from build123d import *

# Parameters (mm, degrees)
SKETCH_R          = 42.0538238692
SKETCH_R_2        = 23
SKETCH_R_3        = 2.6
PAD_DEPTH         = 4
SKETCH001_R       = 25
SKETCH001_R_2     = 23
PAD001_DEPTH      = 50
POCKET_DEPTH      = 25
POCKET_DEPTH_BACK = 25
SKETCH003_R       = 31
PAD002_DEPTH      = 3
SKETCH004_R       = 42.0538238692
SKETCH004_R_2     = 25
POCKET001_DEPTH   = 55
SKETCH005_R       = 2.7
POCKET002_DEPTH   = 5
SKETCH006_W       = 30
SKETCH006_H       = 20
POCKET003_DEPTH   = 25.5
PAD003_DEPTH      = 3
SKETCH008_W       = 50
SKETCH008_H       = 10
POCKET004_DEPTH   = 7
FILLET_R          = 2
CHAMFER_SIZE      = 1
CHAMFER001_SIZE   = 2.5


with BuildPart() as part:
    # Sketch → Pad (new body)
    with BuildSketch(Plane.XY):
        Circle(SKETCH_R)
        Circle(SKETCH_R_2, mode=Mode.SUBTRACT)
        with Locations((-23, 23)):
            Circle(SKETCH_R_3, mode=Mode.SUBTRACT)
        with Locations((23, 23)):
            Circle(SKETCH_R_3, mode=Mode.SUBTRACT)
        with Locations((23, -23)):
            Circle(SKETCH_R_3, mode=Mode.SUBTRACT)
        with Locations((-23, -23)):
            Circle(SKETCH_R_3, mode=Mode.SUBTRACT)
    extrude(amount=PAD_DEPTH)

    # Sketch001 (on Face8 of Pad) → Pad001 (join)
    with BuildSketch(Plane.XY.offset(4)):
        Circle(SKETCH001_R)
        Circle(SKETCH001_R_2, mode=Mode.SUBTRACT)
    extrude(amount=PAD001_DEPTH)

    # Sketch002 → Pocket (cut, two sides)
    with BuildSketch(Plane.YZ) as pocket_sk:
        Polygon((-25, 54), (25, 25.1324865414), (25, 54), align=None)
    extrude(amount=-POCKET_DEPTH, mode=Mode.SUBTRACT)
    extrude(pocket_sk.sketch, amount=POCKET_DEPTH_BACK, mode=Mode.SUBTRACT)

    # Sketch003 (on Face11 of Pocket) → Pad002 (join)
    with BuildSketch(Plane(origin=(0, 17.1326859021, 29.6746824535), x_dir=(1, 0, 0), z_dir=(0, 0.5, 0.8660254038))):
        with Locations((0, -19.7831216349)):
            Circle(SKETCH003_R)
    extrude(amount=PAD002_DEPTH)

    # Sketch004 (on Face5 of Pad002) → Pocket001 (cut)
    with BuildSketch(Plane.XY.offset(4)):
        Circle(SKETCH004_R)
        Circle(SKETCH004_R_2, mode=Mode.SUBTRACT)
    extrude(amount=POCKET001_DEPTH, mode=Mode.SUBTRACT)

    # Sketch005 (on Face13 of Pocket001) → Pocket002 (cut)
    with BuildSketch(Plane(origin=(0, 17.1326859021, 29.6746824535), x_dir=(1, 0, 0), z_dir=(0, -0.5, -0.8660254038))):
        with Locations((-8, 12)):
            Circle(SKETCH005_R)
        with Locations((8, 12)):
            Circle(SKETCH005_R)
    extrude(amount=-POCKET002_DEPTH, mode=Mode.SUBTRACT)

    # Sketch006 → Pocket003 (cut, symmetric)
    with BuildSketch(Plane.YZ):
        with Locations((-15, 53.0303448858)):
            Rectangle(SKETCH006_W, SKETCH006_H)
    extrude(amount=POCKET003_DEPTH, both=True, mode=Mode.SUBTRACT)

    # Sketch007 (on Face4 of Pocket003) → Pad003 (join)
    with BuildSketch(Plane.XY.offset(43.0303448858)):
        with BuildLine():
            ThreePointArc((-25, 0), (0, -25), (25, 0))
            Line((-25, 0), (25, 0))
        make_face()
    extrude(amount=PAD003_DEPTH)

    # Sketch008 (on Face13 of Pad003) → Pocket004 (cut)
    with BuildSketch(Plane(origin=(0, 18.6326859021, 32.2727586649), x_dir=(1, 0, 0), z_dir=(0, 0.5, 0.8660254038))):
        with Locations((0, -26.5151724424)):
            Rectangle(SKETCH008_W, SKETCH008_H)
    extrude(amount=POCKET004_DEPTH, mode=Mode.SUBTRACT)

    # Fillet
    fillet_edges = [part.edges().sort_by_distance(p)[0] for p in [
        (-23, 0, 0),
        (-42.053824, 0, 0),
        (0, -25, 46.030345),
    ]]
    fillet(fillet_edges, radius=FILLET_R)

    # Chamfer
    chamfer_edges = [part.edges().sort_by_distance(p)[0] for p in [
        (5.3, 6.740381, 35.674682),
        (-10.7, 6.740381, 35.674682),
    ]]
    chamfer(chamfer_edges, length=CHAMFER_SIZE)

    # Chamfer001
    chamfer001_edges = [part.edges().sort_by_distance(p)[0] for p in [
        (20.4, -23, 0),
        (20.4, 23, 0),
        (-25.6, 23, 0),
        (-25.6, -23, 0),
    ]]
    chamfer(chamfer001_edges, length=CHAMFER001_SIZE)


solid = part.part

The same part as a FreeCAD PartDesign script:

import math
import FreeCAD as App
import Part
import Sketcher

V = App.Vector
Q = App.Units.Quantity


def edges_at(feature, points):
    """Names of the edges that pass closest to the given points."""
    edges = feature.Shape.Edges
    near = lambda p: min(range(len(edges)), key=lambda i: edges[i].distToShape(Part.Vertex(*p))[0])
    return sorted({f"Edge{near(p) + 1}" for p in points})


def add_polygon(sketch, points):
    """Adds a closed chain of lines whose ends are joined by coincident constraints."""
    first, n = sketch.GeometryCount, len(points)
    for a, b in zip(points, points[1:] + points[:1]):
        sketch.addGeometry(Part.LineSegment(App.Vector(*a, 0), App.Vector(*b, 0)), False)
    for i in range(n):
        sketch.addConstraint(Sketcher.Constraint("Coincident", first + i, 2, first + (i + 1) % n, 1))

doc = App.newDocument("Part")
body = doc.addObject("PartDesign::Body", "Body")

sketch1 = doc.addObject("Sketcher::SketchObject", "Sketch")
body.addObject(sketch1)
sketch1.AttachmentSupport = (doc.XY_Plane, [""])
sketch1.MapMode = "FlatFace"
sketch1.addGeometry([
    Part.Circle(V(0, 0, 0), V(0, 0, 1), 42.1),
    Part.Circle(V(-23, -23, 0), V(0, 0, 1), 2.6),
    Part.Circle(V(23, -23, 0), V(0, 0, 1), 2.6),
    Part.Circle(V(-23, 23, 0), V(0, 0, 1), 2.6),
    Part.Circle(V(0, 0, 0), V(0, 0, 1), 23),
    Part.Circle(V(23, 23, 0), V(0, 0, 1), 2.6),
], False)
sketch1.addConstraint([
    Sketcher.Constraint("Coincident", 0, 3, -1, 1),
    Sketcher.Constraint("Coincident", 4, 3, -1, 1),
    Sketcher.Constraint("Equal", 1, 2),
    Sketcher.Constraint("Equal", 2, 3),
    Sketcher.Constraint("Equal", 3, 5),
    Sketcher.Constraint("Symmetric", 2, 3, 3, 3, -1, 1),
    Sketcher.Constraint("Symmetric", 1, 3, 5, 3, -1, 1),
    Sketcher.Constraint("Symmetric", 1, 3, 2, 3, -2),
    Sketcher.Constraint("Diameter", 4, 46.0),
    Sketcher.Constraint("Diameter", 1, 5.2),
    Sketcher.Constraint("DistanceX", 1, 3, -1, 1, 23.0),
    Sketcher.Constraint("DistanceY", 1, 3, -1, 1, 23.0),
    Sketcher.Constraint("Diameter", 0, 84.107648),
])
pad1 = doc.addObject("PartDesign::Pad", "Pad")
body.addObject(pad1)
pad1.Profile = sketch1
pad1.Length = 4

sketch2 = doc.addObject("Sketcher::SketchObject", "Sketch001")
body.addObject(sketch2)
sketch2.AttachmentSupport = (doc.XY_Plane, [""])
sketch2.MapMode = "FlatFace"
sketch2.AttachmentOffset = App.Placement(V(0, 0, 4), App.Rotation())
sketch2.addGeometry([
    Part.Circle(V(0, 0, 0), V(0, 0, 1), 25),
    Part.Circle(V(0, 0, 0), V(0, 0, 1), 23),
], False)
sketch2.addConstraint([
    Sketcher.Constraint("Coincident", 0, 3, -1, 1),
    Sketcher.Constraint("Coincident", 1, 3, -1, 1),
    Sketcher.Constraint("Diameter", 0, 50.0),
    Sketcher.Constraint("Diameter", 1, 46.0),
])
pad2 = doc.addObject("PartDesign::Pad", "Pad001")
body.addObject(pad2)
pad2.Profile = sketch2
pad2.Length = 50

sketch3 = doc.addObject("Sketcher::SketchObject", "Sketch002")
body.addObject(sketch3)
sketch3.AttachmentSupport = (doc.YZ_Plane, [""])
sketch3.MapMode = "FlatFace"
add_polygon(sketch3, [(-25, 54), (25, 25), (25, 54)])
sketch3.addConstraint([
    Sketcher.Constraint("Vertical", 1),
    Sketcher.Constraint("Horizontal", 2),
    Sketcher.Constraint("DistanceX", 2, 2, 2, 1, 50.0),
    Sketcher.Constraint("Angle", 0, Q("-30 deg")),
    Sketcher.Constraint("DistanceX", -1, 1, 0, 2, 25.0),
    Sketcher.Constraint("DistanceY", -1, 1, 1, 2, 54.0),
])
pocket1 = doc.addObject("PartDesign::Pocket", "Pocket")
body.addObject(pocket1)
pocket1.Profile = sketch3
pocket1.Type = "ThroughAll"
pocket1.Midplane = True

sketch4 = doc.addObject("Sketcher::SketchObject", "Sketch003")
body.addObject(sketch4)
sketch4.Placement = App.Placement(V(0, 17.132686, 29.674682), App.Rotation(V(1, 0, 0), V(0, 0.866025404, -0.5), V(0, 0.5, 0.866025404), "ZXY"))
sketch4.addGeometry(Part.Circle(V(0, -20, 0), V(0, 0, 1), 31), False)
sketch4.addConstraint([
    Sketcher.Constraint("PointOnObject", 0, 3, -2),
    Sketcher.Constraint("Diameter", 0, 62.0),
    Sketcher.Constraint("DistanceY", 0, 3, -1, 1, 19.783122),
])
pad3 = doc.addObject("PartDesign::Pad", "Pad002")
body.addObject(pad3)
pad3.Profile = sketch4
pad3.Length = 3

sketch5 = doc.addObject("Sketcher::SketchObject", "Sketch004")
body.addObject(sketch5)
sketch5.AttachmentSupport = (doc.XY_Plane, [""])
sketch5.MapMode = "FlatFace"
sketch5.AttachmentOffset = App.Placement(V(0, 0, 4), App.Rotation())
sketch5.addGeometry([
    Part.Circle(V(0, 0, 0), V(0, 0, 1), 42),
    Part.Circle(V(0, 0, 0), V(0, 0, 1), 25),
], False)
sketch5.addConstraint([
    Sketcher.Constraint("Coincident", 0, 3, -1, 1),
    Sketcher.Constraint("Coincident", 1, 3, -1, 1),
    Sketcher.Constraint("Diameter", 1, 50.0),
    Sketcher.Constraint("Diameter", 0, 84.107648),
])
pocket2 = doc.addObject("PartDesign::Pocket", "Pocket001")
body.addObject(pocket2)
pocket2.Profile = sketch5
pocket2.Length = 55
pocket2.Reversed = True

sketch6 = doc.addObject("Sketcher::SketchObject", "Sketch005")
body.addObject(sketch6)
sketch6.Placement = App.Placement(V(0, 17.132686, 29.674682), App.Rotation(V(1, 0, 0), V(0, -0.866025404, 0.5), V(0, -0.5, -0.866025404), "ZXY"))
sketch6.addGeometry([
    Part.Circle(V(-8, 12, 0), V(0, 0, 1), 2.7),
    Part.Circle(V(8, 12, 0), V(0, 0, 1), 2.7),
], False)
sketch6.addConstraint([
    Sketcher.Constraint("Equal", 0, 1),
    Sketcher.Constraint("Symmetric", 0, 3, 1, 3, -2),
    Sketcher.Constraint("Diameter", 0, 5.4),
    Sketcher.Constraint("DistanceX", 0, 3, -1, 1, 8.0),
    Sketcher.Constraint("DistanceY", -1, 1, 0, 3, 12.0),
])
pocket3 = doc.addObject("PartDesign::Pocket", "Pocket002")
body.addObject(pocket3)
pocket3.Profile = sketch6
pocket3.Length = 5

sketch7 = doc.addObject("Sketcher::SketchObject", "Sketch006")
body.addObject(sketch7)
sketch7.AttachmentSupport = (doc.YZ_Plane, [""])
sketch7.MapMode = "FlatFace"
add_polygon(sketch7, [(-30, 63), (-30, 43), (0, 43), (0, 63)])
sketch7.addConstraint([
    Sketcher.Constraint("Vertical", 0),
    Sketcher.Constraint("Horizontal", 1),
    Sketcher.Constraint("Vertical", 2),
    Sketcher.Constraint("Horizontal", 3),
    Sketcher.Constraint("PointOnObject", 1, 2, -2),
    Sketcher.Constraint("DistanceX", 1, 1, 1, 2, 30.0),
    Sketcher.Constraint("DistanceY", 0, 2, 0, 1, 20.0),
    Sketcher.Constraint("DistanceY", -1, 1, 0, 2, 43.030345),
])
pocket4 = doc.addObject("PartDesign::Pocket", "Pocket003")
body.addObject(pocket4)
pocket4.Profile = sketch7
pocket4.Length = 51
pocket4.Midplane = True

sketch8 = doc.addObject("Sketcher::SketchObject", "Sketch007")
body.addObject(sketch8)
sketch8.AttachmentSupport = (doc.XY_Plane, [""])
sketch8.MapMode = "FlatFace"
sketch8.AttachmentOffset = App.Placement(V(0, 0, 43.030345), App.Rotation())
sketch8.addGeometry([
    Part.ArcOfCircle(Part.Circle(V(0, 0, 0), V(0, 0, 1), 25), math.radians(180), math.radians(360)),
    Part.LineSegment(V(25, 0, 0), V(-25, 0, 0)),
], False)
sketch8.addConstraint([
    Sketcher.Constraint("Coincident", 0, 1, 1, 2),
    Sketcher.Constraint("Coincident", 1, 1, 0, 2),
    Sketcher.Constraint("Horizontal", 1),
    Sketcher.Constraint("Coincident", 0, 3, -1, 1),
    Sketcher.Constraint("PointOnObject", 0, 1, -1),
    Sketcher.Constraint("Radius", 0, 25.0),
])
pad4 = doc.addObject("PartDesign::Pad", "Pad003")
body.addObject(pad4)
pad4.Profile = sketch8
pad4.Length = 3

sketch9 = doc.addObject("Sketcher::SketchObject", "Sketch008")
body.addObject(sketch9)
sketch9.Placement = App.Placement(V(0, 18.632686, 32.272759), App.Rotation(V(1, 0, 0), V(0, 0.866025404, -0.5), V(0, 0.5, 0.866025404), "ZXY"))
add_polygon(sketch9, [(-25, -22), (-25, -32), (25, -32), (25, -22)])
sketch9.addConstraint([
    Sketcher.Constraint("Vertical", 0),
    Sketcher.Constraint("Horizontal", 1),
    Sketcher.Constraint("Vertical", 2),
    Sketcher.Constraint("Horizontal", 3),
    Sketcher.Constraint("DistanceX", 1, 1, 1, 2, 50.0),
    Sketcher.Constraint("DistanceY", 0, 2, 0, 1, 10.0),
    Sketcher.Constraint("DistanceX", 0, 2, -1, 1, 25.0),
    Sketcher.Constraint("DistanceY", 0, 2, -1, 1, 31.515172),
])
pocket5 = doc.addObject("PartDesign::Pocket", "Pocket004")
body.addObject(pocket5)
pocket5.Profile = sketch9
pocket5.Length = 7
pocket5.Reversed = True
doc.recompute()

fillet = doc.addObject("PartDesign::Fillet", "Fillet")
body.addObject(fillet)
fillet.Base = (pocket5, edges_at(pocket5, [(-23, 0, 0), (-42.054, 0, 0), (0, -25, 46.03)]))
fillet.Radius = 2
doc.recompute()

chamfer = doc.addObject("PartDesign::Chamfer", "Chamfer")
body.addObject(chamfer)
chamfer.Base = (fillet, edges_at(fillet, [(5.3, 6.74, 35.675), (-10.7, 6.74, 35.675)]))
chamfer.Size = 1
doc.recompute()

chamfer2 = doc.addObject("PartDesign::Chamfer", "Chamfer001")
body.addObject(chamfer2)
chamfer2.Base = (chamfer, edges_at(chamfer, [
    (20.4, -23, 0),
    (20.4, 23, 0),
    (-25.6, 23, 0),
    (-25.6, -23, 0),
]))
chamfer2.Size = 2.5

doc.recompute()
